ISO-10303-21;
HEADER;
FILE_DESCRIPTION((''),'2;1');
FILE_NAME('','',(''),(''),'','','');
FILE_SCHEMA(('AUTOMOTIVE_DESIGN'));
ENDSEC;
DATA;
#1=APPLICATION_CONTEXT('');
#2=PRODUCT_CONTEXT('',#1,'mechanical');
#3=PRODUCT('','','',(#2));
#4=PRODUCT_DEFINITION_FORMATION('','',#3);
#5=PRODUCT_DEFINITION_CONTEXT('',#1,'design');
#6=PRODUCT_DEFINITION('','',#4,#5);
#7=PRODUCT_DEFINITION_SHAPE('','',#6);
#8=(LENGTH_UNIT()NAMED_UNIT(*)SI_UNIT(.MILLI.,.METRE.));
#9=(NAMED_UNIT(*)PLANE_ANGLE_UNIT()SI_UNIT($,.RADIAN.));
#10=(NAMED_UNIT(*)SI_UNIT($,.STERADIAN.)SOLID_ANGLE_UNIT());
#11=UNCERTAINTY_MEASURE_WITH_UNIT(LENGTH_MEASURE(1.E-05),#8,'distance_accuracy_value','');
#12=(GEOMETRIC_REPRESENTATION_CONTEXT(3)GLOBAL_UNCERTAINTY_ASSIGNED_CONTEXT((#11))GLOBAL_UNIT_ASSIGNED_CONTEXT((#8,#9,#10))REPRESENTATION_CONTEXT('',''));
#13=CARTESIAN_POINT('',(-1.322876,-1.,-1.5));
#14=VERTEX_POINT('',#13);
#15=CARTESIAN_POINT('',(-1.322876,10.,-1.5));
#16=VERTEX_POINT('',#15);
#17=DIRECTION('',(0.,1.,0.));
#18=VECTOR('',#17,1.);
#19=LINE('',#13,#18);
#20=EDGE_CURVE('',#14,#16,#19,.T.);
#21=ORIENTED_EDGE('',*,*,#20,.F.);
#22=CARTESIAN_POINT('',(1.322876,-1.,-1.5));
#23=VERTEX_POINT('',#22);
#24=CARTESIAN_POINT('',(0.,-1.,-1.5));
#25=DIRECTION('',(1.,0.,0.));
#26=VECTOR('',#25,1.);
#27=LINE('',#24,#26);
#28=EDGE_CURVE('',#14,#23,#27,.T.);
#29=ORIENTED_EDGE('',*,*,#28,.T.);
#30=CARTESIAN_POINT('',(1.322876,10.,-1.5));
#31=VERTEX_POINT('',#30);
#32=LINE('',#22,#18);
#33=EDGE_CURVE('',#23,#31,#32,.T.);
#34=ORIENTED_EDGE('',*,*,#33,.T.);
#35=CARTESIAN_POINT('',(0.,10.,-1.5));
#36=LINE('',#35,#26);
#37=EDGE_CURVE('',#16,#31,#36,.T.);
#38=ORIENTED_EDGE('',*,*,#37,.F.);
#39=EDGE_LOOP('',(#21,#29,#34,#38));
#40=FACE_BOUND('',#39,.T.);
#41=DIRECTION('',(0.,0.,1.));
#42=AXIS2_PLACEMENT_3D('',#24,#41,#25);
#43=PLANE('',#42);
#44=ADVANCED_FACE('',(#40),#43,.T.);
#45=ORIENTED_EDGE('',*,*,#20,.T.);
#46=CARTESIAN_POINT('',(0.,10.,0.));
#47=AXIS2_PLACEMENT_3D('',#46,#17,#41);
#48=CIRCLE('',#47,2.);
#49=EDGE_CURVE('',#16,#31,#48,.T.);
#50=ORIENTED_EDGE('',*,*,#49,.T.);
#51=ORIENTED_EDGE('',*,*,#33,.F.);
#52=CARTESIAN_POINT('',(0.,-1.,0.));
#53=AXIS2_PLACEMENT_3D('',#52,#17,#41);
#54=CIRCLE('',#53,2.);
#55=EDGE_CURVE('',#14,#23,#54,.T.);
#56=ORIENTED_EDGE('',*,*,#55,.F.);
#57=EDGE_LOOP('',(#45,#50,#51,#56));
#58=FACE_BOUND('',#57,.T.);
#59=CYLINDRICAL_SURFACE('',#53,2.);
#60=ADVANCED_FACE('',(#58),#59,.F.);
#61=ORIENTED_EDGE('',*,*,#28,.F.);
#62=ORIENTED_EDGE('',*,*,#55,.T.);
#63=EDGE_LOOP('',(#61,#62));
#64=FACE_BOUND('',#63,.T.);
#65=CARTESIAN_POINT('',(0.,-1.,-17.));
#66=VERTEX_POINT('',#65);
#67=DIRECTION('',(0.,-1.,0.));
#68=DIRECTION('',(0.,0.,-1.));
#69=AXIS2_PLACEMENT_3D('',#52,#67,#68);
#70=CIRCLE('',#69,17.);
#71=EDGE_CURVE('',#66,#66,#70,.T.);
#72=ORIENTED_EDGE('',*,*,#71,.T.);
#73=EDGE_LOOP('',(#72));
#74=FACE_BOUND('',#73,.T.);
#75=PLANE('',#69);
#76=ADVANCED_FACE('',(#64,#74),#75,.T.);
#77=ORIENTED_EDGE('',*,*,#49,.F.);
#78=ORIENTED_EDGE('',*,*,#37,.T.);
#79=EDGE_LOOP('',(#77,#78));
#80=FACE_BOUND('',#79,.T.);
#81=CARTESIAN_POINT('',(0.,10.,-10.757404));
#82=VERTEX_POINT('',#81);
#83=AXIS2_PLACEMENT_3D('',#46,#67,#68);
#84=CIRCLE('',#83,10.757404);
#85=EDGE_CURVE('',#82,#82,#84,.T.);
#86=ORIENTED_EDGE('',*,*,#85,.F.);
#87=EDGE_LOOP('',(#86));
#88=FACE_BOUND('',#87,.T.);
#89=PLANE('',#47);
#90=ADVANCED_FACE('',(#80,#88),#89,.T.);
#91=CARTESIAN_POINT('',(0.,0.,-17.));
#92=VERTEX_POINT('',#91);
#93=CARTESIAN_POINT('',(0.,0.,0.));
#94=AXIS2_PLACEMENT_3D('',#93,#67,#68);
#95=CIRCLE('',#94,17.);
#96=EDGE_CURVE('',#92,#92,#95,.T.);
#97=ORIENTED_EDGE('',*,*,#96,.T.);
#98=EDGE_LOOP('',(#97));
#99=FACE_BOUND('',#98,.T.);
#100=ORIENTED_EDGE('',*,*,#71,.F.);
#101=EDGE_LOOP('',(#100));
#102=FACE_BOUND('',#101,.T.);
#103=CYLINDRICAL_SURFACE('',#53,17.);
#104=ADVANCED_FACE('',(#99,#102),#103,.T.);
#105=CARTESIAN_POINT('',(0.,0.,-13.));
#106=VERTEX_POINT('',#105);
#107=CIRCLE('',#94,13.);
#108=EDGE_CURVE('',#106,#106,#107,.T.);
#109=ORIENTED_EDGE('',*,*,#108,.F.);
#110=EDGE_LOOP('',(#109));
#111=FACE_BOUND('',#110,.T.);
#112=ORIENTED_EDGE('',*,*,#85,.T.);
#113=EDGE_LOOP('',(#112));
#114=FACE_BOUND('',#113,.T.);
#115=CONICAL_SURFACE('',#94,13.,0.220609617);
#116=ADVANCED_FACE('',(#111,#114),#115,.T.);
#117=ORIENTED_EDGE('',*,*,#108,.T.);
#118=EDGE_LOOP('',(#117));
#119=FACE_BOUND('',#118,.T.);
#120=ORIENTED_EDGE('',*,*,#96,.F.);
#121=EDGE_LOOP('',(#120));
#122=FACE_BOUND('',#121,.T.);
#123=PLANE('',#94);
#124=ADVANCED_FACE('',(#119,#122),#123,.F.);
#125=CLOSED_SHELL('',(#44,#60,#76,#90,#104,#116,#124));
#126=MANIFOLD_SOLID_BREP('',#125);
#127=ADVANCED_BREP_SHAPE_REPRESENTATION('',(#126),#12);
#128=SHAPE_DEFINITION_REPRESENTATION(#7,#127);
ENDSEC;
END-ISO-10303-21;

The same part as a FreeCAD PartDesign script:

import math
import FreeCAD as App
import Part
import Sketcher
from FreeCAD import Vector
Q = App.Units.Quantity


def add_polygon(sketch, points):
    """Adds a closed chain of lines whose ends are joined by coincident constraints."""
    first, n = sketch.GeometryCount, len(points)
    for a, b in zip(points, points[1:] + points[:1]):
        sketch.addGeometry(Part.LineSegment(App.Vector(*a, 0), App.Vector(*b, 0)), False)
    for i in range(n):
        sketch.addConstraint(Sketcher.Constraint("Coincident", first + i, 2, first + (i + 1) % n, 1))

doc = App.newDocument("Part")
body = doc.addObject("PartDesign::Body", "Body")

# Sketch on XZ plane
sketch1 = doc.addObject("Sketcher::SketchObject", "Sketch")
body.addObject(sketch1)
sketch1.AttachmentSupport = (doc.XZ_Plane, [""])
sketch1.MapMode = "FlatFace"
sketch1.addGeometry(Part.Circle(Vector(0, 0, 0), Vector(0, 0, 1), 13), False)
sketch1.addConstraint(Sketcher.Constraint("Coincident", 0, 3, -1, 1))
sketch1.addConstraint(Sketcher.Constraint("Diameter", 0, 26.0))
pad1 = doc.addObject("PartDesign::Pad", "Pad")
body.addObject(pad1)
pad1.Profile = sketch1
pad1.Length = 10
pad1.Reversed = True

# Sketch on YZ plane
sketch2 = doc.addObject("Sketcher::SketchObject", "Sketch001")
body.addObject(sketch2)
sketch2.AttachmentSupport = (doc.YZ_Plane, [""])
sketch2.MapMode = "FlatFace"
add_polygon(sketch2, [(0, 13), (10, 10.8), (10, 13)])  # lines 0-2
sketch2.addConstraint(Sketcher.Constraint("Vertical", 1))
sketch2.addConstraint(Sketcher.Constraint("Horizontal", 2))
sketch2.addConstraint(Sketcher.Constraint("PointOnObject", 2, 2, -2))
sketch2.addConstraint(Sketcher.Constraint("DistanceX", 2, 2, 2, 1, 10.0))
sketch2.addConstraint(Sketcher.Constraint("DistanceY", -1, 1, 1, 2, 13.0))
sketch2.addConstraint(Sketcher.Constraint("Angle", 0, Q("-12.64 deg")))
groove = doc.addObject("PartDesign::Groove", "Groove")
body.addObject(groove)
groove.Profile = sketch2
groove.ReferenceAxis = (sketch2, ["H_Axis"])
groove.Angle = 360

# Sketch on XZ plane
sketch3 = doc.addObject("Sketcher::SketchObject", "Sketch002")
body.addObject(sketch3)
sketch3.AttachmentSupport = (doc.XZ_Plane, [""])
sketch3.MapMode = "FlatFace"
sketch3.addGeometry(Part.Circle(Vector(0, 0, 0), Vector(0, 0, 1), 17), False)
sketch3.addConstraint(Sketcher.Constraint("Coincident", 0, 3, -1, 1))
sketch3.addConstraint(Sketcher.Constraint("Diameter", 0, 34.0))
pad2 = doc.addObject("PartDesign::Pad", "Pad001")
body.addObject(pad2)
pad2.Profile = sketch3
pad2.Length = 1

# Sketch on XZ plane
sketch4 = doc.addObject("Sketcher::SketchObject", "Sketch003")
body.addObject(sketch4)
sketch4.AttachmentSupport = (doc.XZ_Plane, [""])
sketch4.MapMode = "FlatFace"
sketch4.AttachmentOffset = App.Placement(Vector(0, 0, -10), App.Rotation())
sketch4.addGeometry(Part.LineSegment(Vector(1.3, -1.5, 0), Vector(-1.3, -1.5, 0)), False)
sketch4.addGeometry(Part.ArcOfCircle(Part.Circle(Vector(0, 0, 0), Vector(0, 0, 1), 2), math.radians(0), math.radians(229)), False)
sketch4.addGeometry(Part.ArcOfCircle(Part.Circle(Vector(0, 0, 0), Vector(0, 0, 1), 2), math.radians(-49), math.radians(0)), False)
sketch4.addConstraint(Sketcher.Constraint("Coincident", 0, 2, 1, 2))
sketch4.addConstraint(Sketcher.Constraint("Tangent", 1, 1, 2, 2))
sketch4.addConstraint(Sketcher.Constraint("Coincident", 2, 1, 0, 1))
sketch4.addConstraint(Sketcher.Constraint("Horizontal", 0))
sketch4.addConstraint(Sketcher.Constraint("Coincident", 1, 3, -1, 1))
sketch4.addConstraint(Sketcher.Constraint("Equal", 1, 2))
sketch4.addConstraint(Sketcher.Constraint("PointOnObject", 1, 1, -1))
sketch4.addConstraint(Sketcher.Constraint("Radius", 1, 2.0))
sketch4.addConstraint(Sketcher.Constraint("DistanceY", 0, 2, -1, 1, 1.5))
pocket1 = doc.addObject("PartDesign::Pocket", "Pocket")
body.addObject(pocket1)
pocket1.Profile = sketch4
pocket1.Type = "ThroughAll"
pocket1.Reversed = True

doc.recompute()
